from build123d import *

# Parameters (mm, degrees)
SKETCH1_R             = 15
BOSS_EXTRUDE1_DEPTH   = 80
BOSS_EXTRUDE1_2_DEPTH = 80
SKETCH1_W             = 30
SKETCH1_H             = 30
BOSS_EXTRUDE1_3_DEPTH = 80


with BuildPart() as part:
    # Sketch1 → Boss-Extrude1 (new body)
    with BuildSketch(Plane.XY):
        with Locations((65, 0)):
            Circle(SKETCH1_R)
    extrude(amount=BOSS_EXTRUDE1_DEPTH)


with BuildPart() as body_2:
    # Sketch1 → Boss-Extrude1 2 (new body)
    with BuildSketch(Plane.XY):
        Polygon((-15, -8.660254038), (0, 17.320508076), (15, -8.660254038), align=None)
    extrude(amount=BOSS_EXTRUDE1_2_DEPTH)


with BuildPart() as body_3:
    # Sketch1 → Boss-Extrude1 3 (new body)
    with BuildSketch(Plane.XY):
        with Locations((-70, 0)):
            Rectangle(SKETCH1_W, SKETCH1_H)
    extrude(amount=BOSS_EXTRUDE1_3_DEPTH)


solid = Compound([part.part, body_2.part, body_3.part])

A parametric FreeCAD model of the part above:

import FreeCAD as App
import Part
import Sketcher
Q = App.Units.Quantity

doc = App.newDocument("Part")
params = doc.addObject("Spreadsheet::Sheet", "Params")
for row, (alias, value) in enumerate([
    ("sketch1_diameter", "30 mm"),
    ("pad1_length", "80 mm"),
    ("sketch2_width", "30 mm"),
    ("pad2_length", "80 mm"),
    ("sketch3_width", "30 mm"),
    ("pad3_length", "80 mm"),
], start=1):
    params.set(f"A{row}", alias)
    params.set(f"B{row}", "=" + value)
    params.setAlias(f"B{row}", alias)

body = doc.addObject("PartDesign::Body", "Body")

sketch1 = doc.addObject("Sketcher::SketchObject", "Sketch")
body.addObject(sketch1)
sketch1.AttachmentSupport = (doc.XY_Plane, [""])
sketch1.MapMode = "FlatFace"
sketch1.addGeometry(Part.Circle(App.Vector(65, 0, 0), App.Vector(0, 0, 1), 15), False)
sketch1.addConstraint([
    Sketcher.Constraint("PointOnObject", 0, 3, -1),
    Sketcher.Constraint("Diameter", 0, Q("30 mm")),
    Sketcher.Constraint("DistanceX", -1, 1, 0, 3, Q("65 mm")),
])
sketch1.setExpression("Constraints[1]", "Params.sketch1_diameter")
pad1 = doc.addObject("PartDesign::Pad", "Pad")
body.addObject(pad1)
pad1.Profile = sketch1
pad1.setExpression("Length", "Params.pad1_length")
body2 = doc.addObject("PartDesign::Body", "Body001")

sketch2 = doc.addObject("Sketcher::SketchObject", "Sketch001")
body2.addObject(sketch2)
sketch2.AttachmentSupport = (doc.getObject("XY_Plane001"), [""])
sketch2.MapMode = "FlatFace"
sketch2.addGeometry([
    Part.LineSegment(App.Vector(0, 17.320508, 0), App.Vector(-15, -8.660254, 0)),
    Part.LineSegment(App.Vector(-15, -8.660254, 0), App.Vector(15, -8.660254, 0)),
    Part.LineSegment(App.Vector(15, -8.660254, 0), App.Vector(0, 17.320508, 0)),
], False)
sketch2.addConstraint([
    Sketcher.Constraint("Coincident", 0, 2, 1, 1),
    Sketcher.Constraint("Coincident", 1, 2, 2, 1),
    Sketcher.Constraint("Coincident", 2, 2, 0, 1),
    Sketcher.Constraint("Horizontal", 1),
    Sketcher.Constraint("PointOnObject", 2, 2, -2),
    Sketcher.Constraint("Equal", 0, 2),
    Sketcher.Constraint("DistanceX", 1, 1, 1, 2, Q("30 mm")),
    Sketcher.Constraint("Angle", 0, Q("-120 deg")),
    Sketcher.Constraint("DistanceY", -1, 1, 2, 2, Q("17.320508 mm")),
])
sketch2.setExpression("Constraints[6]", "Params.sketch2_width")
pad2 = doc.addObject("PartDesign::Pad", "Pad001")
body2.addObject(pad2)
pad2.Profile = sketch2
pad2.setExpression("Length", "Params.pad2_length")
body3 = doc.addObject("PartDesign::Body", "Body002")

sketch3 = doc.addObject("Sketcher::SketchObject", "Sketch002")
body3.addObject(sketch3)
sketch3.AttachmentSupport = (doc.getObject("XY_Plane002"), [""])
sketch3.MapMode = "FlatFace"
sketch3.addGeometry([
    Part.LineSegment(App.Vector(-85, 15, 0), App.Vector(-85, -15, 0)),
    Part.LineSegment(App.Vector(-85, -15, 0), App.Vector(-55, -15, 0)),
    Part.LineSegment(App.Vector(-55, -15, 0), App.Vector(-55, 15, 0)),
    Part.LineSegment(App.Vector(-55, 15, 0), App.Vector(-85, 15, 0)),
], False)
sketch3.addConstraint([
    Sketcher.Constraint("Coincident", 0, 2, 1, 1),
    Sketcher.Constraint("Coincident", 1, 2, 2, 1),
    Sketcher.Constraint("Coincident", 2, 2, 3, 1),
    Sketcher.Constraint("Coincident", 3, 2, 0, 1),
    Sketcher.Constraint("Vertical", 0),
    Sketcher.Constraint("Horizontal", 1),
    Sketcher.Constraint("Vertical", 2),
    Sketcher.Constraint("Horizontal", 3),
    Sketcher.Constraint("Equal", 3, 0),
    Sketcher.Constraint("DistanceX", 1, 1, 1, 2, Q("30 mm")),
    Sketcher.Constraint("DistanceX", 0, 2, -1, 1, Q("85 mm")),
    Sketcher.Constraint("DistanceY", 0, 2, -1, 1, Q("15 mm")),
])
sketch3.setExpression("Constraints[9]", "Params.sketch3_width")
pad3 = doc.addObject("PartDesign::Pad", "Pad002")
body3.addObject(pad3)
pad3.Profile = sketch3
pad3.setExpression("Length", "Params.pad3_length")

doc.recompute()
